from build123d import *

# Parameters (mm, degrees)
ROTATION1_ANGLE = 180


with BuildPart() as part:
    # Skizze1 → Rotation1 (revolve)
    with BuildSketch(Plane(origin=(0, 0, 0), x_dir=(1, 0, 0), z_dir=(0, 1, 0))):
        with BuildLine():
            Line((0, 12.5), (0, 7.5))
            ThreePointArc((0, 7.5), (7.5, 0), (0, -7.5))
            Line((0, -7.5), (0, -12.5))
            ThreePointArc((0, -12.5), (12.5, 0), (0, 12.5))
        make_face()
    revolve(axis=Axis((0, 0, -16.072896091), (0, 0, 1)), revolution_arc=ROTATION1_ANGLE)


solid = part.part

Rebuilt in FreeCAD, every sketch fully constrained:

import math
import FreeCAD as App
import Part
import Sketcher
Q = App.Units.Quantity

doc = App.newDocument("Part")
body = doc.addObject("PartDesign::Body", "Body")

sketch1 = body.newObject("Sketcher::SketchObject", "Sketch")
sketch1.AttachmentSupport = (doc.getObject("XZ_Plane"), [""])
sketch1.MapMode = "FlatFace"
sketch1.addGeometry(Part.LineSegment(App.Vector(0, -12, 0), App.Vector(0, -8, 0)), False)
sketch1.addGeometry(Part.ArcOfCircle(Part.Circle(App.Vector(0, 0, 0), App.Vector(0, 0, 1), 8), math.radians(-90), math.radians(90)), False)
sketch1.addGeometry(Part.LineSegment(App.Vector(0, 8, 0), App.Vector(0, 12, 0)), False)
sketch1.addGeometry(Part.ArcOfCircle(Part.Circle(App.Vector(0, 0, 0), App.Vector(0, 0, 1), 12), math.radians(-90), math.radians(90)), False)
sketch1.addConstraint(Sketcher.Constraint("Coincident", 0, 2, 1, 1))
sketch1.addConstraint(Sketcher.Constraint("Coincident", 1, 2, 2, 1))
sketch1.addConstraint(Sketcher.Constraint("Coincident", 2, 2, 3, 2))
sketch1.addConstraint(Sketcher.Constraint("Coincident", 3, 1, 0, 1))
sketch1.addConstraint(Sketcher.Constraint("Vertical", 0))
sketch1.addConstraint(Sketcher.Constraint("Vertical", 2))
sketch1.addConstraint(Sketcher.Constraint("Coincident", 1, 3, -1, 1))
sketch1.addConstraint(Sketcher.Constraint("Coincident", 3, 3, -1, 1))
sketch1.addConstraint(Sketcher.Constraint("PointOnObject", 0, 2, -2))
sketch1.addConstraint(Sketcher.Constraint("PointOnObject", 1, 2, -2))
sketch1.addConstraint(Sketcher.Constraint("Radius", 1, Q("7.5 mm")))
sketch1.addConstraint(Sketcher.Constraint("Radius", 3, Q("12.5 mm")))
revolution = body.newObject("PartDesign::Revolution", "Revolution")
revolution.Profile = sketch1
revolution.ReferenceAxis = (sketch1, ["V_Axis"])
revolution.Angle = 180

doc.recompute()
